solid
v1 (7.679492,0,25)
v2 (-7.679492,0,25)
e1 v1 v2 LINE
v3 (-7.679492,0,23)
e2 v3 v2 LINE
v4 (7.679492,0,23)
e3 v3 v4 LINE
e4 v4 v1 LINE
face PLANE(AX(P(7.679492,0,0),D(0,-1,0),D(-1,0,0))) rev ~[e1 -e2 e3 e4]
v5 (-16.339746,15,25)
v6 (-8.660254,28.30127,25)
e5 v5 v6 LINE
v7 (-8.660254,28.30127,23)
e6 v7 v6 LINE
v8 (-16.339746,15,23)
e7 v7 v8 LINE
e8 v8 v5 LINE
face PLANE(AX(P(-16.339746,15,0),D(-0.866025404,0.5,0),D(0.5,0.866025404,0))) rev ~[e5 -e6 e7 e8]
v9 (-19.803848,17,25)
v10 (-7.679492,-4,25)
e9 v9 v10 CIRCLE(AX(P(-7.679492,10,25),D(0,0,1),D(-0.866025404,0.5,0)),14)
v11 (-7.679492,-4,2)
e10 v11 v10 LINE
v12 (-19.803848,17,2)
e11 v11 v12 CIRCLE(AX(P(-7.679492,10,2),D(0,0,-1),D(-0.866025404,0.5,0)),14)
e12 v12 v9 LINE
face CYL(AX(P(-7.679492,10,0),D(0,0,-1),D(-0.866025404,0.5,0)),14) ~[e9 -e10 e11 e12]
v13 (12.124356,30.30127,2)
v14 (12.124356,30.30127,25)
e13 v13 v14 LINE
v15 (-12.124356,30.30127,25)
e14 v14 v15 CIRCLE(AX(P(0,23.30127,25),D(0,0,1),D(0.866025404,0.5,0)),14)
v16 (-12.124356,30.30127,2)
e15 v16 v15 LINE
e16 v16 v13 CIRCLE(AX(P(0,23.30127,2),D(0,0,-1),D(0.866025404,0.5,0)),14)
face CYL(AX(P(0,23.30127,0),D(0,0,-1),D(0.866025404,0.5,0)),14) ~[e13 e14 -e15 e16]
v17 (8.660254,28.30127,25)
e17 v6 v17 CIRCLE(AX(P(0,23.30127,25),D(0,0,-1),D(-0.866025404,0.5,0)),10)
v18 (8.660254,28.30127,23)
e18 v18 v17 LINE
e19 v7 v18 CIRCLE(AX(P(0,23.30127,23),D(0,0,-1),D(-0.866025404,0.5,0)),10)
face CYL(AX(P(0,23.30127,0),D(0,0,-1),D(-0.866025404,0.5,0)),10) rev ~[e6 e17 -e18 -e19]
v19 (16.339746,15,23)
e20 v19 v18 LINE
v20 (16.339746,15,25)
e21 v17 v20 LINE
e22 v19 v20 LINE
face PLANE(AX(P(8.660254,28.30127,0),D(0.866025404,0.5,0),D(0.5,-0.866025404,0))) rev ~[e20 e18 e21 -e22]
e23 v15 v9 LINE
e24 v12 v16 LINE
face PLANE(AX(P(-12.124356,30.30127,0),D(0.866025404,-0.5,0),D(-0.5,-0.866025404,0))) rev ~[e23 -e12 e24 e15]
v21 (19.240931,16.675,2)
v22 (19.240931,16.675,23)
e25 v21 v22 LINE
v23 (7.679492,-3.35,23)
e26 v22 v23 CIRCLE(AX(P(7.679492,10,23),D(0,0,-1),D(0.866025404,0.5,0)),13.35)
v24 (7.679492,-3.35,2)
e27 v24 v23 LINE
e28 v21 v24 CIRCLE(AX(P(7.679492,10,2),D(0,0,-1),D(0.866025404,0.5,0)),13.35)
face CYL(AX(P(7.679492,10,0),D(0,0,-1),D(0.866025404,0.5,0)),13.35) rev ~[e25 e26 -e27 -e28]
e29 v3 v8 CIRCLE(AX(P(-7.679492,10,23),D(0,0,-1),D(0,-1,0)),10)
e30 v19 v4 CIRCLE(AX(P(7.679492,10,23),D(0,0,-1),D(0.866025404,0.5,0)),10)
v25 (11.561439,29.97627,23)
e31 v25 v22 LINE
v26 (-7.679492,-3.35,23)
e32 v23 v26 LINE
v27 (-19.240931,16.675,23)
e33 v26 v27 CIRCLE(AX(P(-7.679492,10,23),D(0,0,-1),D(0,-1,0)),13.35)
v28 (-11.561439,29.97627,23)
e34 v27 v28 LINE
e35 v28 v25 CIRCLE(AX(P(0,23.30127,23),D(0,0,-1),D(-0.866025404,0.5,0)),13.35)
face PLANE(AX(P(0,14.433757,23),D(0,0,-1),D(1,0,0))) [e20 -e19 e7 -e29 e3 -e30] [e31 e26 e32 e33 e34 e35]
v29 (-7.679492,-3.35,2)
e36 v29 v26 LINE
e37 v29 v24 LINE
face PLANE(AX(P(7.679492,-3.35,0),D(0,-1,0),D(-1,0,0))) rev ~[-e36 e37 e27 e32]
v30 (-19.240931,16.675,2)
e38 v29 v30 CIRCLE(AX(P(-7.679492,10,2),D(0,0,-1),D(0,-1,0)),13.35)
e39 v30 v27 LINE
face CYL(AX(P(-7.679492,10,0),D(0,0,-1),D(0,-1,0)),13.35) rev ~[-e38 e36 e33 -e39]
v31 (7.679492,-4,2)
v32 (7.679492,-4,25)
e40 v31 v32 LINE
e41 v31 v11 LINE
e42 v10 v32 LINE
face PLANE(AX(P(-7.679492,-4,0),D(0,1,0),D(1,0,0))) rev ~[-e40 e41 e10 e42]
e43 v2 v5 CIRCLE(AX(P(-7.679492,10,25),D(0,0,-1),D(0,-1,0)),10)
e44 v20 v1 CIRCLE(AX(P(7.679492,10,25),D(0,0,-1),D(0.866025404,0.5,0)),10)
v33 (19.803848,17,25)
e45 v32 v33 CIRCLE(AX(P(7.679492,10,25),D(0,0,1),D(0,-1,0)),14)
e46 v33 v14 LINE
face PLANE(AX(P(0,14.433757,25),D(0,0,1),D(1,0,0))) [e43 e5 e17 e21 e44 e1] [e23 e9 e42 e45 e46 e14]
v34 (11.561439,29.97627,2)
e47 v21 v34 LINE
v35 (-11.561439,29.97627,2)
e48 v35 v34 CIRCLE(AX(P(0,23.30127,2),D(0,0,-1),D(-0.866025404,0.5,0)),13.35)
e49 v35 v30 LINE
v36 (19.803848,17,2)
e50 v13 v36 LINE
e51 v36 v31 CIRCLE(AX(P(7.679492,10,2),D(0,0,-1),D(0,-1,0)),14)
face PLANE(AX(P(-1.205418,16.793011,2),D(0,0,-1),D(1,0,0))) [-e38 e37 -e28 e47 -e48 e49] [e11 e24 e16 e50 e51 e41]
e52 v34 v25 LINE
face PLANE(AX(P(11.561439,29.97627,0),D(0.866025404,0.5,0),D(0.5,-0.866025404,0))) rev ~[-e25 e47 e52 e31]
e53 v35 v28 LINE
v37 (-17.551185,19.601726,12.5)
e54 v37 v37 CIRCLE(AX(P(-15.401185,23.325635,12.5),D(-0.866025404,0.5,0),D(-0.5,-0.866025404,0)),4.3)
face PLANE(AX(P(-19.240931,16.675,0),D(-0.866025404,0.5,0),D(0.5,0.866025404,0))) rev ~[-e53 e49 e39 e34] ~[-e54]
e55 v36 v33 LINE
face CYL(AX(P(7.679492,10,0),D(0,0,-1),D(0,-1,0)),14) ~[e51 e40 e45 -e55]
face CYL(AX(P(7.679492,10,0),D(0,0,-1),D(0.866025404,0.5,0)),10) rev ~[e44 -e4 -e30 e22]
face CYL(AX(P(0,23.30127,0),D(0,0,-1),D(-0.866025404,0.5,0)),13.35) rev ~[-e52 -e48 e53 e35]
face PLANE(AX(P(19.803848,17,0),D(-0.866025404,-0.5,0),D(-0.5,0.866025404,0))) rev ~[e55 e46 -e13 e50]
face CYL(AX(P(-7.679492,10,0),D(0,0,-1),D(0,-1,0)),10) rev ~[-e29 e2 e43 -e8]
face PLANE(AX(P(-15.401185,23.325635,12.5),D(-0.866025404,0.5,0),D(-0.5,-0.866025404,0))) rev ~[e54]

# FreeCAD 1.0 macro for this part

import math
import FreeCAD as App
import Part
import Sketcher

V = App.Vector
Q = App.Units.Quantity

doc = App.newDocument("Part")
body = doc.addObject("PartDesign::Body", "Body")

# Sketch on XY plane
sketch1 = body.newObject("Sketcher::SketchObject", "Sketch")
sketch1.AttachmentSupport = (doc.getObject("XY_Plane"), [""])
sketch1.MapMode = "FlatFace"
sketch1.addGeometry(Part.ArcOfCircle(Part.Circle(V(8, 10, 0), V(0, 0, 1), 14), math.radians(-90), math.radians(30)), False)
sketch1.addGeometry(Part.LineSegment(V(20, 17, 0), V(12, 30, 0)), False)
sketch1.addGeometry(Part.ArcOfCircle(Part.Circle(V(0, 23, 0), V(0, 0, 1), 14), math.radians(30), math.radians(150)), False)
sketch1.addGeometry(Part.LineSegment(V(-12, 30, 0), V(-20, 17, 0)), False)
sketch1.addGeometry(Part.ArcOfCircle(Part.Circle(V(-8, 10, 0), V(0, 0, 1), 14), math.radians(150), math.radians(270)), False)
sketch1.addGeometry(Part.LineSegment(V(-8, -4, 0), V(8, -4, 0)), False)
sketch1.addGeometry(Part.ArcOfCircle(Part.Circle(V(8, 10, 0), V(0, 0, 1), 10), math.radians(-90), math.radians(30)), False)
sketch1.addGeometry(Part.LineSegment(V(8, 0, 0), V(-8, 0, 0)), False)
sketch1.addGeometry(Part.ArcOfCircle(Part.Circle(V(-8, 10, 0), V(0, 0, 1), 10), math.radians(150), math.radians(270)), False)
sketch1.addGeometry(Part.LineSegment(V(-16, 15, 0), V(-9, 28, 0)), False)
sketch1.addGeometry(Part.ArcOfCircle(Part.Circle(V(0, 23, 0), V(0, 0, 1), 10), math.radians(30), math.radians(150)), False)
sketch1.addGeometry(Part.LineSegment(V(9, 28, 0), V(16, 15, 0)), False)
sketch1.addConstraint(Sketcher.Constraint("Tangent", 0, 2, 1, 1))
sketch1.addConstraint(Sketcher.Constraint("Tangent", 1, 2, 2, 1))
sketch1.addConstraint(Sketcher.Constraint("Tangent", 2, 2, 3, 1))
sketch1.addConstraint(Sketcher.Constraint("Tangent", 3, 2, 4, 1))
sketch1.addConstraint(Sketcher.Constraint("Tangent", 4, 2, 5, 1))
sketch1.addConstraint(Sketcher.Constraint("Tangent", 5, 2, 0, 1))
sketch1.addConstraint(Sketcher.Constraint("Tangent", 6, 1, 7, 1))
sketch1.addConstraint(Sketcher.Constraint("Tangent", 7, 2, 8, 2))
sketch1.addConstraint(Sketcher.Constraint("Tangent", 8, 1, 9, 1))
sketch1.addConstraint(Sketcher.Constraint("Tangent", 9, 2, 10, 2))
sketch1.addConstraint(Sketcher.Constraint("Tangent", 10, 1, 11, 1))
sketch1.addConstraint(Sketcher.Constraint("Tangent", 11, 2, 6, 2))
sketch1.addConstraint(Sketcher.Constraint("Horizontal", 5))
sketch1.addConstraint(Sketcher.Constraint("Horizontal", 7))
sketch1.addConstraint(Sketcher.Constraint("Coincident", 6, 3, 0, 3))
sketch1.addConstraint(Sketcher.Constraint("Coincident", 8, 3, 4, 3))
sketch1.addConstraint(Sketcher.Constraint("Coincident", 10, 3, 2, 3))
sketch1.addConstraint(Sketcher.Constraint("Equal", 0, 2))
sketch1.addConstraint(Sketcher.Constraint("Equal", 2, 4))
sketch1.addConstraint(Sketcher.Constraint("Equal", 8, 10))
sketch1.addConstraint(Sketcher.Constraint("Symmetric", 6, 1, 7, 2, -1, 1))
sketch1.addConstraint(Sketcher.Constraint("PointOnObject", 2, 3, -2))
sketch1.addConstraint(Sketcher.Constraint("Radius", 0, 14.0))
sketch1.addConstraint(Sketcher.Constraint("Radius", 6, 10.0))
sketch1.addConstraint(Sketcher.Constraint("Angle", 1, Q("120 deg")))
sketch1.addConstraint(Sketcher.Constraint("DistanceX", 5, 1, 5, 2, 15.358984))
pad1 = body.newObject("PartDesign::Pad", "Pad")
pad1.Profile = sketch1
pad1.Length = 25

# Sketch on an angled plane
sketch2 = body.newObject("Sketcher::SketchObject", "Sketch001")
sketch2.Placement = App.Placement(V(-21.651185, 12.500318, 0), App.Rotation(V(-0.5, -0.866025404, 0), V(0, 0, 1), V(-0.866025404, 0.5, 0), "ZXY"))
sketch2.addGeometry(Part.Circle(V(-12.5, 12.5, 0), V(0, 0, 1), 4.3), False)
sketch2.addConstraint(Sketcher.Constraint("Diameter", 0, 8.6))
sketch2.addConstraint(Sketcher.Constraint("DistanceX", 0, 3, -1, 1, 12.5))
sketch2.addConstraint(Sketcher.Constraint("DistanceY", -1, 1, 0, 3, 12.5))
pocket1 = body.newObject("PartDesign::Pocket", "Pocket")
pocket1.Profile = sketch2
pocket1.Length = 2.15

# Sketch on XY plane
sketch3 = body.newObject("Sketcher::SketchObject", "Sketch002")
sketch3.AttachmentSupport = (doc.getObject("XY_Plane"), [""])
sketch3.MapMode = "FlatFace"
sketch3.addGeometry(Part.LineSegment(V(-19, 17, 0), V(-12, 30, 0)), False)
sketch3.addGeometry(Part.ArcOfCircle(Part.Circle(V(0, 23, 0), V(0, 0, 1), 13), math.radians(30), math.radians(150)), False)
sketch3.addGeometry(Part.LineSegment(V(12, 30, 0), V(19, 17, 0)), False)
sketch3.addGeometry(Part.ArcOfCircle(Part.Circle(V(8, 10, 0), V(0, 0, 1), 13), math.radians(-90), math.radians(30)), False)
sketch3.addGeometry(Part.LineSegment(V(8, -3, 0), V(-8, -3, 0)), False)
sketch3.addGeometry(Part.ArcOfCircle(Part.Circle(V(-8, 10, 0), V(0, 0, 1), 13), math.radians(150), math.radians(270)), False)
sketch3.addConstraint(Sketcher.Constraint("Tangent", 0, 2, 1, 2))
sketch3.addConstraint(Sketcher.Constraint("Tangent", 1, 1, 2, 1))
sketch3.addConstraint(Sketcher.Constraint("Tangent", 2, 2, 3, 2))
sketch3.addConstraint(Sketcher.Constraint("Tangent", 3, 1, 4, 1))
sketch3.addConstraint(Sketcher.Constraint("Tangent", 4, 2, 5, 2))
sketch3.addConstraint(Sketcher.Constraint("Tangent", 5, 1, 0, 1))
sketch3.addConstraint(Sketcher.Constraint("Horizontal", 4))
sketch3.addConstraint(Sketcher.Constraint("Equal", 1, 3))
sketch3.addConstraint(Sketcher.Constraint("Equal", 3, 5))
sketch3.addConstraint(Sketcher.Constraint("Symmetric", 0, 2, 1, 1, -2))
sketch3.addConstraint(Sketcher.Constraint("Angle", 0, Q("60 deg")))
sketch3.addConstraint(Sketcher.Constraint("Radius", 1, 13.35))
sketch3.addConstraint(Sketcher.Constraint("DistanceY", -1, 1, 3, 3, 10.0))
sketch3.addConstraint(Sketcher.Constraint("DistanceX", 4, 2, 4, 1, 15.358984))
pocket2 = body.newObject("PartDesign::Pocket", "Pocket001")
pocket2.Profile = sketch3
pocket2.Length = 23
pocket2.Reversed = True

# Sketch on XY plane
sketch4 = body.newObject("Sketcher::SketchObject", "Sketch003")
sketch4.AttachmentSupport = (doc.getObject("XY_Plane"), [""])
sketch4.MapMode = "FlatFace"
sketch4.addGeometry(Part.Circle(V(-1, 17, 0), V(0, 0, 1), 34), False)
sketch4.addConstraint(Sketcher.Constraint("Diameter", 0, 67.103672))
sketch4.addConstraint(Sketcher.Constraint("DistanceY", -1, 1, 0, 3, 16.793011))
sketch4.addConstraint(Sketcher.Constraint("DistanceX", 0, 3, -1, 1, 1.205418))
pocket3 = body.newObject("PartDesign::Pocket", "Pocket002")
pocket3.Profile = sketch4
pocket3.Length = 2
pocket3.Reversed = True

doc.recompute()
